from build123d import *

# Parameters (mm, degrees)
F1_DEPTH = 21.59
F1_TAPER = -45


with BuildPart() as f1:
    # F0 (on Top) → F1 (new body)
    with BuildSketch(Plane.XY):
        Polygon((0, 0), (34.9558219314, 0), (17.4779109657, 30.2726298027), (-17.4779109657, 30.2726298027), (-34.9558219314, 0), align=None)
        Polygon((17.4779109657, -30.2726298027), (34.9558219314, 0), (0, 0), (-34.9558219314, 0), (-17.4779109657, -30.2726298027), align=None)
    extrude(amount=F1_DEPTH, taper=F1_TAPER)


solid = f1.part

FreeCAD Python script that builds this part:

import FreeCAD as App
import Part
import Sketcher
from FreeCAD import Vector
Q = App.Units.Quantity


def add_polygon(sketch, points):
    """Adds a closed chain of lines whose ends are joined by coincident constraints."""
    first, n = sketch.GeometryCount, len(points)
    for a, b in zip(points, points[1:] + points[:1]):
        sketch.addGeometry(Part.LineSegment(App.Vector(*a, 0), App.Vector(*b, 0)), False)
    for i in range(n):
        sketch.addConstraint(Sketcher.Constraint("Coincident", first + i, 2, first + (i + 1) % n, 1))

doc = App.newDocument("Part")
body = doc.addObject("PartDesign::Body", "Body")

# Sketch on XY plane
sketch1 = body.newObject("Sketcher::SketchObject", "Sketch")
sketch1.AttachmentSupport = (doc.getObject("XY_Plane"), [""])
sketch1.MapMode = "FlatFace"
add_polygon(sketch1, [(34.955822, 0), (17.477911, 30.27263), (-17.477911, 30.27263), (-34.955822, 0), (-17.477911, -30.27263), (17.477911, -30.27263)])  # lines 0-5
sketch1.addConstraint(Sketcher.Constraint("Horizontal", 1))
sketch1.addConstraint(Sketcher.Constraint("Horizontal", 4))
sketch1.addConstraint(Sketcher.Constraint("Symmetric", 0, 2, 3, 2, -1, 1))
sketch1.addConstraint(Sketcher.Constraint("Symmetric", 2, 2, 5, 2, -1, 1))
sketch1.addConstraint(Sketcher.Constraint("PointOnObject", 2, 2, -1))
sketch1.addConstraint(Sketcher.Constraint("Parallel", 2, 5))
sketch1.addConstraint(Sketcher.Constraint("Vertical", 1, 2, 3, 2))
sketch1.addConstraint(Sketcher.Constraint("Angle", 0, Q("120 deg")))
sketch1.addConstraint(Sketcher.Constraint("DistanceX", 1, 2, 1, 1, Q("34.955822 mm")))
sketch1.addConstraint(Sketcher.Constraint("Distance", 0, Q("34.955822 mm")))
pad1 = body.newObject("PartDesign::Pad", "Pad")
pad1.Profile = sketch1
pad1.Length = Q("0.85 in")
pad1.TaperAngle = 45

doc.recompute()
